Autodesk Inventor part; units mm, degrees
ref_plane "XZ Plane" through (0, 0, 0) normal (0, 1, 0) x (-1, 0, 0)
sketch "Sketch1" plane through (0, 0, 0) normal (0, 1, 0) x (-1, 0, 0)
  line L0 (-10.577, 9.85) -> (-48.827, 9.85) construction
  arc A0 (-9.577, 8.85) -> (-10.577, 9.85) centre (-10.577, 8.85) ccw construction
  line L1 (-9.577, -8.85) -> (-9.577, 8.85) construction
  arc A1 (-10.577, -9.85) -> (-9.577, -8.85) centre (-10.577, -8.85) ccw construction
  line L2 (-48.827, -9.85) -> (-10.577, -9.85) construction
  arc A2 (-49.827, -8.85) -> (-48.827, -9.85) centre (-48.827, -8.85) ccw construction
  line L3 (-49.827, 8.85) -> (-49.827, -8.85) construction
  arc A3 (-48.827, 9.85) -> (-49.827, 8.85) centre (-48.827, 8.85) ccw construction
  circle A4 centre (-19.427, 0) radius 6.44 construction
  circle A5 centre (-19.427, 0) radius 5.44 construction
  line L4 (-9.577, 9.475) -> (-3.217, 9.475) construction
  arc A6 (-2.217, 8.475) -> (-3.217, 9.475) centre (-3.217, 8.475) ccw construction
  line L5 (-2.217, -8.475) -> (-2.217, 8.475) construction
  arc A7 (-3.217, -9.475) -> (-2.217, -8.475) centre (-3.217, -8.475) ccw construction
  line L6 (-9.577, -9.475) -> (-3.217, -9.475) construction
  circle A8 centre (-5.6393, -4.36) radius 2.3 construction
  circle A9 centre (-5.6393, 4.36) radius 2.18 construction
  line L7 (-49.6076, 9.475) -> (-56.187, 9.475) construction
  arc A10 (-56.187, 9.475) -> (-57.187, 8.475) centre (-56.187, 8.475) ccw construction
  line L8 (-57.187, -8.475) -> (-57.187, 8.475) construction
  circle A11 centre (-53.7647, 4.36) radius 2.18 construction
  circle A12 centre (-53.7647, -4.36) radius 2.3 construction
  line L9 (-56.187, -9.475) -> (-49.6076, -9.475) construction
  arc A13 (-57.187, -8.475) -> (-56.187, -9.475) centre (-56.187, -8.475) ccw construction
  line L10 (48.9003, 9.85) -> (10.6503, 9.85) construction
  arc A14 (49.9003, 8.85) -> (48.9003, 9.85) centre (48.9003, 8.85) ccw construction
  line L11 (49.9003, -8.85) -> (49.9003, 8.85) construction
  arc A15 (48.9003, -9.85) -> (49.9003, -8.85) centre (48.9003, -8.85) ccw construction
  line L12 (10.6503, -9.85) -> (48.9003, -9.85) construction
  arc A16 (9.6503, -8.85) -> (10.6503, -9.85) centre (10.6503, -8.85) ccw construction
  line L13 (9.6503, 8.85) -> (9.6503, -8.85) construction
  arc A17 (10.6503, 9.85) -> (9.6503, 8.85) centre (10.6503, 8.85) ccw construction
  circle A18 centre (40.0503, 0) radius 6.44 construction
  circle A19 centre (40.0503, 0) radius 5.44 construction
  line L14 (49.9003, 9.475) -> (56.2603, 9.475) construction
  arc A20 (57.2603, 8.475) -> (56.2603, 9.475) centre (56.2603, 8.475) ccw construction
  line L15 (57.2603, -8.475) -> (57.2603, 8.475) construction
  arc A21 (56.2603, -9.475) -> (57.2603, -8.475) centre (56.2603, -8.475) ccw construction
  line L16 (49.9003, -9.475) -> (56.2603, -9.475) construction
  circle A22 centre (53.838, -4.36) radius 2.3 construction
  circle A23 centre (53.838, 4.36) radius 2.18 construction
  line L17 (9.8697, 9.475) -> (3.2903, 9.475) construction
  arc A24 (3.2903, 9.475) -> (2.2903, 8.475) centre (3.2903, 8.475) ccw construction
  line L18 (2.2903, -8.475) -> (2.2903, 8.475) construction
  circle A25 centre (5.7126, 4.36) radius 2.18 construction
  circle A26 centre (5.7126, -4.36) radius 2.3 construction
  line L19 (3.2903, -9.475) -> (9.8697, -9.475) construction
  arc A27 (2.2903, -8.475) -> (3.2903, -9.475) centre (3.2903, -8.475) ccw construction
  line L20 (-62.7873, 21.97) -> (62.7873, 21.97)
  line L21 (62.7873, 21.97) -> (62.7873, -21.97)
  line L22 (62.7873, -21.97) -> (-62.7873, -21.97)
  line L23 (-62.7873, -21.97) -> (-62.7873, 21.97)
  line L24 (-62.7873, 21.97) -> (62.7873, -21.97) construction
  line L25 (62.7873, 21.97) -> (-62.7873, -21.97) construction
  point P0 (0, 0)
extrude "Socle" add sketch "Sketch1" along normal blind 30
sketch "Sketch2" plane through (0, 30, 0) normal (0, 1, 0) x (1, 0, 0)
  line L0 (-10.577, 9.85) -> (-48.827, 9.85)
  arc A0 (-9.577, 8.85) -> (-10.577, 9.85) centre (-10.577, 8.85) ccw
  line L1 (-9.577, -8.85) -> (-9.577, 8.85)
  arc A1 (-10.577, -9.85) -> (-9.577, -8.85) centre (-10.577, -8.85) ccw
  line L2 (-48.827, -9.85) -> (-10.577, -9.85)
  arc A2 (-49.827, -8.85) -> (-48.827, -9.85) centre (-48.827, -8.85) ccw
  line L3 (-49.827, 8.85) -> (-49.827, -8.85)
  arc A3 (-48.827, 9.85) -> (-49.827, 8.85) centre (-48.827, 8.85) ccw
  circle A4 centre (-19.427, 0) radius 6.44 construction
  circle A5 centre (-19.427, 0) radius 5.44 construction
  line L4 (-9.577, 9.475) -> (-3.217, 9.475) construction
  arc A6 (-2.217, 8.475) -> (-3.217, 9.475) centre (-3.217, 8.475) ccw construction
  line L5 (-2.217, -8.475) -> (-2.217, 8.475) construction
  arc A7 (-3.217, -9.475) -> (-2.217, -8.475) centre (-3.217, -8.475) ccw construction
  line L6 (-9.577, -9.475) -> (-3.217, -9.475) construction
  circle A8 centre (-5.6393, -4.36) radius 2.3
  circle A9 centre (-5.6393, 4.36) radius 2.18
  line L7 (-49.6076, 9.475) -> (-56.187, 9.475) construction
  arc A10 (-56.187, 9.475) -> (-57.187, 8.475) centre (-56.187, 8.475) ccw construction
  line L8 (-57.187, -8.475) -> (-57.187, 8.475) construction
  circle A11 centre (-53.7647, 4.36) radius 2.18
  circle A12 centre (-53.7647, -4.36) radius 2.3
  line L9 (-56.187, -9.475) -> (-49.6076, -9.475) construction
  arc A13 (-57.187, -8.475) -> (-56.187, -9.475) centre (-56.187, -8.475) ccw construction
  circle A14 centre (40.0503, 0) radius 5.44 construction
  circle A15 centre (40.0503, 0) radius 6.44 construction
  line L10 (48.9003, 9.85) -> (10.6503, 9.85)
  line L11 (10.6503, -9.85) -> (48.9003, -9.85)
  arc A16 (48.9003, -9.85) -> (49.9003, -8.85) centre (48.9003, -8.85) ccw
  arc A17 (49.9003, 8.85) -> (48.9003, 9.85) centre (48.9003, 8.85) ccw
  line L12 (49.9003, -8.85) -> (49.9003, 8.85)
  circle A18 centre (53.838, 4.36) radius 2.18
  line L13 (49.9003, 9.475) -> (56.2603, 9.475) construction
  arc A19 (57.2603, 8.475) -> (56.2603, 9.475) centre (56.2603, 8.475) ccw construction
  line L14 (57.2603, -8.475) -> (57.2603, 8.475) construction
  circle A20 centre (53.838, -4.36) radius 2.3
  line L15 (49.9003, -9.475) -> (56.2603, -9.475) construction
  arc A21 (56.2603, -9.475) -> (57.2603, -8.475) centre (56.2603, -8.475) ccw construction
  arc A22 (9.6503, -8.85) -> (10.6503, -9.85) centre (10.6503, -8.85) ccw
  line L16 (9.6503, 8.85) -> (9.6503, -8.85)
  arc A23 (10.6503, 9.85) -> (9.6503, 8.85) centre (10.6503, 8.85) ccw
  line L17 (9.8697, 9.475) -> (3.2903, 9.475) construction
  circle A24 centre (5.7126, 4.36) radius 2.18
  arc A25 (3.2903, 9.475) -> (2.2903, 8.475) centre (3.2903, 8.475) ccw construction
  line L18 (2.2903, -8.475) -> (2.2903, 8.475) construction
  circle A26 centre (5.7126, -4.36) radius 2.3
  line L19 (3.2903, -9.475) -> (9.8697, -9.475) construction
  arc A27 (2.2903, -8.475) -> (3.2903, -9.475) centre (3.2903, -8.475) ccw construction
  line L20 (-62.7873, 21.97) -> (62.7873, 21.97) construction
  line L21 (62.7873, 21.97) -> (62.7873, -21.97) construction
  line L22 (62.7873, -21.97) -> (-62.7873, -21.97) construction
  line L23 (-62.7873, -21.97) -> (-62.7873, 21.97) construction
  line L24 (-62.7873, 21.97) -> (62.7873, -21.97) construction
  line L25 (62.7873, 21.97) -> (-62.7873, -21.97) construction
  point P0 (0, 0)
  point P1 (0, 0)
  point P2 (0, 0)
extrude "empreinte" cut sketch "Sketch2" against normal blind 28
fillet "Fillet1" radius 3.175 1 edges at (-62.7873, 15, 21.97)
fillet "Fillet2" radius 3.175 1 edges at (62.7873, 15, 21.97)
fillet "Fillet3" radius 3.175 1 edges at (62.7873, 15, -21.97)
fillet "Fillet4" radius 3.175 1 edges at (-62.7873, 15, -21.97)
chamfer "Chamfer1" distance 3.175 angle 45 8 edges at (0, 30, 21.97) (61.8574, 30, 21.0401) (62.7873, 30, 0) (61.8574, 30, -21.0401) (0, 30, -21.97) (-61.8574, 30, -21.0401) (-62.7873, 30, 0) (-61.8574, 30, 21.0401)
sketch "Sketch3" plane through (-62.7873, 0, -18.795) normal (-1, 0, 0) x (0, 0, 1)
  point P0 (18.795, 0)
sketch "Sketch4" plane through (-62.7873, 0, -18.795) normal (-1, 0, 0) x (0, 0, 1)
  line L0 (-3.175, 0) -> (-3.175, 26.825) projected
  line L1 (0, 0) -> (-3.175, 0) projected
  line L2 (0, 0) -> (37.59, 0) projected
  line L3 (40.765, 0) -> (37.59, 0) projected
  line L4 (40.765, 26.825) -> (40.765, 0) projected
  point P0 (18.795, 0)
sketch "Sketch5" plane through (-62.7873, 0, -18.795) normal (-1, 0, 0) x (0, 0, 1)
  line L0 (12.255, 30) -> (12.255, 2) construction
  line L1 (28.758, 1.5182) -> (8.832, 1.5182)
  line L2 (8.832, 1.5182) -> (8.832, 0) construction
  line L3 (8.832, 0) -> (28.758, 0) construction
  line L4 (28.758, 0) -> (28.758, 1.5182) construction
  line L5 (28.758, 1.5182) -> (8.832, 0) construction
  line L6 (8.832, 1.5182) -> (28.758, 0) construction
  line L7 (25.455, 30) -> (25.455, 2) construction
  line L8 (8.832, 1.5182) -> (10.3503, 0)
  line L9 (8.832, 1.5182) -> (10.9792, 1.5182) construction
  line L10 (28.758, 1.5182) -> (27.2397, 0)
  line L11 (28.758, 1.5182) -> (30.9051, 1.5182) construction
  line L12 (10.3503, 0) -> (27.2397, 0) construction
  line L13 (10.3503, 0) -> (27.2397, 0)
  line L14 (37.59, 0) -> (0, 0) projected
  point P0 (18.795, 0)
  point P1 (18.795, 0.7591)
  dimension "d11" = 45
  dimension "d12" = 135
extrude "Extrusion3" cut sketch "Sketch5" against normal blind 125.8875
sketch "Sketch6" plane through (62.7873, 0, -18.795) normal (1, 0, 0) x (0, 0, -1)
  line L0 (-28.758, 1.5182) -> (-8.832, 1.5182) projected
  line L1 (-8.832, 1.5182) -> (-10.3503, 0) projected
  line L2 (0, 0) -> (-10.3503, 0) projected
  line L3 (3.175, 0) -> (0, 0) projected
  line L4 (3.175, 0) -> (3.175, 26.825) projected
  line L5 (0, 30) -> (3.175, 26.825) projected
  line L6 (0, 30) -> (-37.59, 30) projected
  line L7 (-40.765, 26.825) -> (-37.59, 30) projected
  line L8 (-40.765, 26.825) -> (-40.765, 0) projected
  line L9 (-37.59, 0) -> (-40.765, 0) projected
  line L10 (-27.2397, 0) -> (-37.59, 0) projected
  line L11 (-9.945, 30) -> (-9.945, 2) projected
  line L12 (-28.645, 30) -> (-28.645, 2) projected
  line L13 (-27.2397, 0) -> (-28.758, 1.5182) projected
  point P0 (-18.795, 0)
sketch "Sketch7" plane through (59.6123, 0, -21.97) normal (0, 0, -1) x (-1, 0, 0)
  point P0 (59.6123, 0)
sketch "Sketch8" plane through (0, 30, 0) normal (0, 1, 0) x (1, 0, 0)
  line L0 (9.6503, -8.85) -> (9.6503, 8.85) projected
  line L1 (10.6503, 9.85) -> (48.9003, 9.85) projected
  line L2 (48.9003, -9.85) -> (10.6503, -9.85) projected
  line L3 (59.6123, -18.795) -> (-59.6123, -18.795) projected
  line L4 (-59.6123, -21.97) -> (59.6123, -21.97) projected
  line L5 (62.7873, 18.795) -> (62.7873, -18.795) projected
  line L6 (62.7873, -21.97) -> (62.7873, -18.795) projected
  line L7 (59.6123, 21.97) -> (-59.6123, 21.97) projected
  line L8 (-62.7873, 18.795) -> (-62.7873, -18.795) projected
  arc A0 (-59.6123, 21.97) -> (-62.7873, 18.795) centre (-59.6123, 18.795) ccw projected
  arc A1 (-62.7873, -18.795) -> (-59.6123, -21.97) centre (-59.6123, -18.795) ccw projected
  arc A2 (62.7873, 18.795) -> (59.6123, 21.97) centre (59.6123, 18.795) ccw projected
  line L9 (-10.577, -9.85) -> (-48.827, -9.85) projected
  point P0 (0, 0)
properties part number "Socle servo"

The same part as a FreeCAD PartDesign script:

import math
import FreeCAD as App
import Part
import Sketcher

V = App.Vector


def edges_at(feature, points):
    """Names of the edges that pass closest to the given points."""
    edges = feature.Shape.Edges
    near = lambda p: min(range(len(edges)), key=lambda i: edges[i].distToShape(Part.Vertex(*p))[0])
    return sorted({f"Edge{near(p) + 1}" for p in points})

doc = App.newDocument("Part")
body = doc.addObject("PartDesign::Body", "Body")

# Sketch on XZ plane
sketch1 = doc.addObject("Sketcher::SketchObject", "Sketch")
body.addObject(sketch1)
sketch1.AttachmentSupport = (doc.XZ_Plane, [""])
sketch1.MapMode = "FlatFace"
sketch1.addGeometry([
    Part.LineSegment(V(-62.7873, 21.97, 0), V(62.7873, 21.97, 0)),
    Part.LineSegment(V(62.7873, 21.97, 0), V(62.7873, -21.97, 0)),
    Part.LineSegment(V(62.7873, -21.97, 0), V(-62.7873, -21.97, 0)),
    Part.LineSegment(V(-62.7873, -21.97, 0), V(-62.7873, 21.97, 0)),
], False)
sketch1.addConstraint([
    Sketcher.Constraint("Coincident", 0, 2, 1, 1),
    Sketcher.Constraint("Coincident", 1, 2, 2, 1),
    Sketcher.Constraint("Coincident", 2, 2, 3, 1),
    Sketcher.Constraint("Coincident", 3, 2, 0, 1),
    Sketcher.Constraint("Horizontal", 0),
    Sketcher.Constraint("Vertical", 1),
    Sketcher.Constraint("Horizontal", 2),
    Sketcher.Constraint("Vertical", 3),
    Sketcher.Constraint("Symmetric", 0, 2, 2, 2, -1, 1),
    Sketcher.Constraint("DistanceY", 1, 2, 1, 1, 43.94),
    Sketcher.Constraint("DistanceX", 0, 1, 0, 2, 125.5746),
])
pad1 = doc.addObject("PartDesign::Pad", "Pad")
body.addObject(pad1)
pad1.Profile = sketch1
pad1.Length = 30
pad1.Reversed = True

# Sketch on XZ plane
sketch2 = doc.addObject("Sketcher::SketchObject", "Sketch001")
body.addObject(sketch2)
sketch2.AttachmentSupport = (doc.XZ_Plane, [""])
sketch2.MapMode = "FlatFace"
sketch2.AttachmentOffset = App.Placement(V(0, 0, -30), App.Rotation())
sketch2.addGeometry([
    Part.ArcOfCircle(Part.Circle(V(-10.577, -8.85, 0), V(0, 0, 1), 1), math.radians(-90), math.radians(0)),  # 0
    Part.LineSegment(V(-10.577, -9.85, 0), V(-48.827, -9.85, 0)),  # 1
    Part.ArcOfCircle(Part.Circle(V(-48.827, -8.85, 0), V(0, 0, 1), 1), math.radians(180), math.radians(270)),  # 2
    Part.LineSegment(V(-49.827, -8.85, 0), V(-49.827, 8.85, 0)),  # 3
    Part.ArcOfCircle(Part.Circle(V(-48.827, 8.85, 0), V(0, 0, 1), 1), math.radians(90), math.radians(180)),  # 4
    Part.LineSegment(V(-48.827, 9.85, 0), V(-10.577, 9.85, 0)),  # 5
    Part.ArcOfCircle(Part.Circle(V(-10.577, 8.85, 0), V(0, 0, 1), 1), math.radians(0), math.radians(90)),  # 6
    Part.LineSegment(V(-9.577, 8.85, 0), V(-9.577, -8.85, 0)),  # 7
    Part.Circle(V(-5.6393, 4.36, 0), V(0, 0, 1), 2.3),  # 8
    Part.Circle(V(-5.6393, -4.36, 0), V(0, 0, 1), 2.18),  # 9
    Part.Circle(V(-53.7647, -4.36, 0), V(0, 0, 1), 2.18),  # 10
    Part.Circle(V(-53.7647, 4.36, 0), V(0, 0, 1), 2.3),  # 11
    Part.ArcOfCircle(Part.Circle(V(48.9003, -8.85, 0), V(0, 0, 1), 1), math.radians(-90), math.radians(0)),  # 12
    Part.LineSegment(V(48.9003, -9.85, 0), V(10.6503, -9.85, 0)),  # 13
    Part.ArcOfCircle(Part.Circle(V(10.6503, -8.85, 0), V(0, 0, 1), 1), math.radians(180), math.radians(270)),  # 14
    Part.LineSegment(V(9.6503, -8.85, 0), V(9.6503, 8.85, 0)),  # 15
    Part.ArcOfCircle(Part.Circle(V(10.6503, 8.85, 0), V(0, 0, 1), 1), math.radians(90), math.radians(180)),  # 16
    Part.LineSegment(V(10.6503, 9.85, 0), V(48.9003, 9.85, 0)),  # 17
    Part.ArcOfCircle(Part.Circle(V(48.9003, 8.85, 0), V(0, 0, 1), 1), math.radians(0), math.radians(90)),  # 18
    Part.LineSegment(V(49.9003, 8.85, 0), V(49.9003, -8.85, 0)),  # 19
    Part.Circle(V(53.838, -4.36, 0), V(0, 0, 1), 2.18),  # 20
    Part.Circle(V(53.838, 4.36, 0), V(0, 0, 1), 2.3),  # 21
    Part.Circle(V(5.7126, -4.36, 0), V(0, 0, 1), 2.18),  # 22
    Part.Circle(V(5.7126, 4.36, 0), V(0, 0, 1), 2.3),  # 23
], False)
sketch2.addConstraint([
    Sketcher.Constraint("Tangent", 0, 1, 1, 1),
    Sketcher.Constraint("Tangent", 1, 2, 2, 2),
    Sketcher.Constraint("Tangent", 2, 1, 3, 1),
    Sketcher.Constraint("Tangent", 3, 2, 4, 2),
    Sketcher.Constraint("Tangent", 4, 1, 5, 1),
    Sketcher.Constraint("Tangent", 5, 2, 6, 2),
    Sketcher.Constraint("Tangent", 6, 1, 7, 1),
    Sketcher.Constraint("Tangent", 7, 2, 0, 2),
    Sketcher.Constraint("Tangent", 12, 1, 13, 1),
    Sketcher.Constraint("Tangent", 13, 2, 14, 2),
    Sketcher.Constraint("Tangent", 14, 1, 15, 1),
    Sketcher.Constraint("Tangent", 15, 2, 16, 2),
    Sketcher.Constraint("Tangent", 16, 1, 17, 1),
    Sketcher.Constraint("Tangent", 17, 2, 18, 2),
    Sketcher.Constraint("Tangent", 18, 1, 19, 1),
    Sketcher.Constraint("Tangent", 19, 2, 12, 2),
    Sketcher.Constraint("Horizontal", 1),
    Sketcher.Constraint("Vertical", 3),
    Sketcher.Constraint("Horizontal", 5),
    Sketcher.Constraint("Vertical", 7),
    Sketcher.Constraint("Horizontal", 13),
    Sketcher.Constraint("Vertical", 15),
    Sketcher.Constraint("Horizontal", 17),
    Sketcher.Constraint("Vertical", 19),
    Sketcher.Constraint("Equal", 0, 2),
    Sketcher.Constraint("Equal", 2, 4),
    Sketcher.Constraint("Equal", 4, 6),
    Sketcher.Constraint("Equal", 9, 10),
    Sketcher.Constraint("Equal", 8, 11),
    Sketcher.Constraint("Equal", 6, 12),
    Sketcher.Constraint("Equal", 12, 14),
    Sketcher.Constraint("Equal", 14, 16),
    Sketcher.Constraint("Equal", 16, 18),
    Sketcher.Constraint("Equal", 10, 20),
    Sketcher.Constraint("Equal", 11, 21),
    Sketcher.Constraint("Equal", 20, 22),
    Sketcher.Constraint("Equal", 21, 23),
    Sketcher.Constraint("Symmetric", 8, 3, 9, 3, -1),
    Sketcher.Constraint("Symmetric", 10, 3, 11, 3, -1),
    Sketcher.Constraint("Symmetric", 20, 3, 21, 3, -1),
    Sketcher.Constraint("Symmetric", 22, 3, 23, 3, -1),
    Sketcher.Constraint("Horizontal", 9, 3, 10, 3),
    Sketcher.Constraint("Horizontal", 2, 3, 12, 3),
    Sketcher.Constraint("Horizontal", 6, 3, 16, 3),
    Sketcher.Constraint("Horizontal", 10, 3, 20, 3),
    Sketcher.Constraint("Horizontal", 20, 3, 22, 3),
    Sketcher.Constraint("Equal", 5, 13),
    Sketcher.Constraint("Radius", 0, 1.0),
    Sketcher.Constraint("Diameter", 8, 4.6),
    Sketcher.Constraint("Diameter", 9, 4.36),
    Sketcher.Constraint("DistanceY", 3, 1, 3, 2, 17.7),
    Sketcher.Constraint("DistanceX", 1, 2, 1, 1, 38.25),
    Sketcher.Constraint("DistanceY", 0, 3, -1, 1, 8.85),
    Sketcher.Constraint("DistanceY", -1, 1, 8, 3, 4.36),
    Sketcher.Constraint("DistanceX", 0, 3, -1, 1, 10.577),
    Sketcher.Constraint("DistanceX", -1, 1, 20, 3, 53.838),
    Sketcher.Constraint("DistanceX", 9, 3, 22, 3, 11.352),
    Sketcher.Constraint("DistanceX", 8, 3, -1, 1, 5.6393),
    Sketcher.Constraint("DistanceX", 10, 3, -1, 1, 53.7647),
    Sketcher.Constraint("DistanceX", -1, 1, 12, 3, 48.9003),
])
pocket1 = doc.addObject("PartDesign::Pocket", "Pocket")
body.addObject(pocket1)
pocket1.Profile = sketch2
pocket1.Length = 28
pocket1.Reversed = True
doc.recompute()

fillet = doc.addObject("PartDesign::Fillet", "Fillet")
body.addObject(fillet)
fillet.Base = (pocket1, edges_at(pocket1, [(-62.787, 15, 21.97)]))
fillet.Radius = 3.175
doc.recompute()

fillet2 = doc.addObject("PartDesign::Fillet", "Fillet001")
body.addObject(fillet2)
fillet2.Base = (fillet, edges_at(fillet, [(62.787, 15, 21.97)]))
fillet2.Radius = 3.175
doc.recompute()

fillet3 = doc.addObject("PartDesign::Fillet", "Fillet002")
body.addObject(fillet3)
fillet3.Base = (fillet2, edges_at(fillet2, [(62.787, 15, -21.97)]))
fillet3.Radius = 3.175
doc.recompute()

fillet4 = doc.addObject("PartDesign::Fillet", "Fillet003")
body.addObject(fillet4)
fillet4.Base = (fillet3, edges_at(fillet3, [(-62.787, 15, -21.97)]))
fillet4.Radius = 3.175
doc.recompute()

chamfer = doc.addObject("PartDesign::Chamfer", "Chamfer")
body.addObject(chamfer)
chamfer.Base = (fillet4, edges_at(fillet4, [
    (0, 30, 21.97),
    (61.857, 30, 21.04),
    (62.787, 30, 0),
    (61.857, 30, -21.04),
    (0, 30, -21.97),
    (-61.857, 30, -21.04),
    (-62.787, 30, 0),
    (-61.857, 30, 21.04),
]))
chamfer.Size = 3.175

# Sketch on YZ plane
sketch3 = doc.addObject("Sketcher::SketchObject", "Sketch002")
body.addObject(sketch3)
sketch3.AttachmentSupport = (doc.YZ_Plane, [""])
sketch3.MapMode = "FlatFace"
sketch3.AttachmentOffset = App.Placement(V(0, 0, -62.7873), App.Rotation())
sketch3.addGeometry([
    Part.LineSegment(V(0, 8.4447, 0), V(1.5182, 9.963, 0)),
    Part.LineSegment(V(1.5182, 9.963, 0), V(1.5182, -9.963, 0)),
    Part.LineSegment(V(1.5182, -9.963, 0), V(0, -8.4447, 0)),
    Part.LineSegment(V(0, -8.4447, 0), V(0, 8.4447, 0)),
], False)
sketch3.addConstraint([
    Sketcher.Constraint("Coincident", 0, 2, 1, 1),
    Sketcher.Constraint("Coincident", 1, 2, 2, 1),
    Sketcher.Constraint("Coincident", 2, 2, 3, 1),
    Sketcher.Constraint("Coincident", 3, 2, 0, 1),
    Sketcher.Constraint("Vertical", 1),
    Sketcher.Constraint("Vertical", 3),
    Sketcher.Constraint("Symmetric", 2, 2, 3, 2, -1, 1),
    Sketcher.Constraint("Perpendicular", 0, 2),
    Sketcher.Constraint("Equal", 0, 2),
    Sketcher.Constraint("DistanceY", 1, 2, 1, 1, 19.926),
    Sketcher.Constraint("DistanceY", 3, 1, 3, 2, 16.8894),
])
pocket2 = doc.addObject("PartDesign::Pocket", "Pocket001")
body.addObject(pocket2)
pocket2.Profile = sketch3
pocket2.Length = 125.8875
pocket2.Reversed = True

doc.recompute()
